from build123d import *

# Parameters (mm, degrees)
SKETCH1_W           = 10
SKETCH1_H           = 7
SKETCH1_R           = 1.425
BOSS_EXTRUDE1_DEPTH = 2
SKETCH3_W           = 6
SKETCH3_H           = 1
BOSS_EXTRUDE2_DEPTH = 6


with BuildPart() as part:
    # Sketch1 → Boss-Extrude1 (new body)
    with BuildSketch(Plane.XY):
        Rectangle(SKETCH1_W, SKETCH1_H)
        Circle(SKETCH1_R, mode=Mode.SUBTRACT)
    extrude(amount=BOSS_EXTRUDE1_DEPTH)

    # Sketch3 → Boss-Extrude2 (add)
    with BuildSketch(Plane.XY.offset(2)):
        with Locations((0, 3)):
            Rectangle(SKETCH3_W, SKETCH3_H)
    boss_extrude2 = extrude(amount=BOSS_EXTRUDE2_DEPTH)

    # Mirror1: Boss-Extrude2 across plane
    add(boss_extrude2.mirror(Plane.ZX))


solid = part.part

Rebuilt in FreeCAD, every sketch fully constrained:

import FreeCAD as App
import Part
import Sketcher

doc = App.newDocument("Part")
params = doc.addObject("Spreadsheet::Sheet", "Params")
for row, (alias, value) in enumerate([
    ("sketch1_diameter", "2.85 mm"),
    ("sketch1_width", "10 mm"),
    ("sketch1_height", "7 mm"),
    ("pad1_length", "2 mm"),
    ("sketch2_width", "6 mm"),
    ("sketch2_height", "1 mm"),
    ("pad2_length", "6 mm"),
], start=1):
    params.set(f"A{row}", alias)
    params.set(f"B{row}", "=" + value)
    params.setAlias(f"B{row}", alias)

body = doc.addObject("PartDesign::Body", "Body")

sketch1 = doc.addObject("Sketcher::SketchObject", "Sketch")
body.addObject(sketch1)
sketch1.AttachmentSupport = (doc.XY_Plane, [""])
sketch1.MapMode = "FlatFace"
sketch1.addGeometry([
    Part.LineSegment(App.Vector(-5, 3.5, 0), App.Vector(-5, -3.5, 0)),
    Part.LineSegment(App.Vector(-5, -3.5, 0), App.Vector(5, -3.5, 0)),
    Part.LineSegment(App.Vector(5, -3.5, 0), App.Vector(5, 3.5, 0)),
    Part.LineSegment(App.Vector(5, 3.5, 0), App.Vector(-5, 3.5, 0)),
    Part.Circle(App.Vector(0, 0, 0), App.Vector(0, 0, 1), 1.4),
], False)
sketch1.addConstraint([
    Sketcher.Constraint("Coincident", 0, 2, 1, 1),
    Sketcher.Constraint("Coincident", 1, 2, 2, 1),
    Sketcher.Constraint("Coincident", 2, 2, 3, 1),
    Sketcher.Constraint("Coincident", 3, 2, 0, 1),
    Sketcher.Constraint("Vertical", 0),
    Sketcher.Constraint("Horizontal", 1),
    Sketcher.Constraint("Vertical", 2),
    Sketcher.Constraint("Horizontal", 3),
    Sketcher.Constraint("Coincident", 4, 3, -1, 1),
    Sketcher.Constraint("Symmetric", 0, 2, 2, 2, -1, 1),
    Sketcher.Constraint("Diameter", 4, 2.85),
    Sketcher.Constraint("DistanceX", 1, 1, 1, 2, 10.0),
    Sketcher.Constraint("DistanceY", 0, 2, 0, 1, 7.0),
])
sketch1.setExpression("Constraints[10]", "Params.sketch1_diameter")
sketch1.setExpression("Constraints[11]", "Params.sketch1_width")
sketch1.setExpression("Constraints[12]", "Params.sketch1_height")
pad1 = doc.addObject("PartDesign::Pad", "Pad")
body.addObject(pad1)
pad1.Profile = sketch1
pad1.setExpression("Length", "Params.pad1_length")

sketch2 = doc.addObject("Sketcher::SketchObject", "Sketch001")
body.addObject(sketch2)
sketch2.AttachmentSupport = (doc.XY_Plane, [""])
sketch2.MapMode = "FlatFace"
sketch2.AttachmentOffset = App.Placement(App.Vector(0, 0, 2), App.Rotation())
sketch2.addGeometry([
    Part.LineSegment(App.Vector(-3, 3.5, 0), App.Vector(-3, 2.5, 0)),
    Part.LineSegment(App.Vector(-3, 2.5, 0), App.Vector(3, 2.5, 0)),
    Part.LineSegment(App.Vector(3, 2.5, 0), App.Vector(3, 3.5, 0)),
    Part.LineSegment(App.Vector(3, 3.5, 0), App.Vector(-3, 3.5, 0)),
], False)
sketch2.addConstraint([
    Sketcher.Constraint("Coincident", 0, 2, 1, 1),
    Sketcher.Constraint("Coincident", 1, 2, 2, 1),
    Sketcher.Constraint("Coincident", 2, 2, 3, 1),
    Sketcher.Constraint("Coincident", 3, 2, 0, 1),
    Sketcher.Constraint("Vertical", 0),
    Sketcher.Constraint("Horizontal", 1),
    Sketcher.Constraint("Vertical", 2),
    Sketcher.Constraint("Horizontal", 3),
    Sketcher.Constraint("DistanceX", 1, 1, 1, 2, 6.0),
    Sketcher.Constraint("DistanceY", 0, 2, 0, 1, 1.0),
    Sketcher.Constraint("DistanceX", 0, 2, -1, 1, 3.0),
    Sketcher.Constraint("DistanceY", -1, 1, 0, 2, 2.5),
])
sketch2.setExpression("Constraints[8]", "Params.sketch2_width")
sketch2.setExpression("Constraints[9]", "Params.sketch2_height")
pad2 = doc.addObject("PartDesign::Pad", "Pad001")
body.addObject(pad2)
pad2.Profile = sketch2
pad2.setExpression("Length", "Params.pad2_length")
doc.recompute()

mirrored = doc.addObject("PartDesign::Mirrored", "Mirrored")
body.addObject(mirrored)
mirrored.Originals = [pad2]
mirrored.MirrorPlane = (doc.XZ_Plane, [""])
body.Tip = mirrored

doc.recompute()
